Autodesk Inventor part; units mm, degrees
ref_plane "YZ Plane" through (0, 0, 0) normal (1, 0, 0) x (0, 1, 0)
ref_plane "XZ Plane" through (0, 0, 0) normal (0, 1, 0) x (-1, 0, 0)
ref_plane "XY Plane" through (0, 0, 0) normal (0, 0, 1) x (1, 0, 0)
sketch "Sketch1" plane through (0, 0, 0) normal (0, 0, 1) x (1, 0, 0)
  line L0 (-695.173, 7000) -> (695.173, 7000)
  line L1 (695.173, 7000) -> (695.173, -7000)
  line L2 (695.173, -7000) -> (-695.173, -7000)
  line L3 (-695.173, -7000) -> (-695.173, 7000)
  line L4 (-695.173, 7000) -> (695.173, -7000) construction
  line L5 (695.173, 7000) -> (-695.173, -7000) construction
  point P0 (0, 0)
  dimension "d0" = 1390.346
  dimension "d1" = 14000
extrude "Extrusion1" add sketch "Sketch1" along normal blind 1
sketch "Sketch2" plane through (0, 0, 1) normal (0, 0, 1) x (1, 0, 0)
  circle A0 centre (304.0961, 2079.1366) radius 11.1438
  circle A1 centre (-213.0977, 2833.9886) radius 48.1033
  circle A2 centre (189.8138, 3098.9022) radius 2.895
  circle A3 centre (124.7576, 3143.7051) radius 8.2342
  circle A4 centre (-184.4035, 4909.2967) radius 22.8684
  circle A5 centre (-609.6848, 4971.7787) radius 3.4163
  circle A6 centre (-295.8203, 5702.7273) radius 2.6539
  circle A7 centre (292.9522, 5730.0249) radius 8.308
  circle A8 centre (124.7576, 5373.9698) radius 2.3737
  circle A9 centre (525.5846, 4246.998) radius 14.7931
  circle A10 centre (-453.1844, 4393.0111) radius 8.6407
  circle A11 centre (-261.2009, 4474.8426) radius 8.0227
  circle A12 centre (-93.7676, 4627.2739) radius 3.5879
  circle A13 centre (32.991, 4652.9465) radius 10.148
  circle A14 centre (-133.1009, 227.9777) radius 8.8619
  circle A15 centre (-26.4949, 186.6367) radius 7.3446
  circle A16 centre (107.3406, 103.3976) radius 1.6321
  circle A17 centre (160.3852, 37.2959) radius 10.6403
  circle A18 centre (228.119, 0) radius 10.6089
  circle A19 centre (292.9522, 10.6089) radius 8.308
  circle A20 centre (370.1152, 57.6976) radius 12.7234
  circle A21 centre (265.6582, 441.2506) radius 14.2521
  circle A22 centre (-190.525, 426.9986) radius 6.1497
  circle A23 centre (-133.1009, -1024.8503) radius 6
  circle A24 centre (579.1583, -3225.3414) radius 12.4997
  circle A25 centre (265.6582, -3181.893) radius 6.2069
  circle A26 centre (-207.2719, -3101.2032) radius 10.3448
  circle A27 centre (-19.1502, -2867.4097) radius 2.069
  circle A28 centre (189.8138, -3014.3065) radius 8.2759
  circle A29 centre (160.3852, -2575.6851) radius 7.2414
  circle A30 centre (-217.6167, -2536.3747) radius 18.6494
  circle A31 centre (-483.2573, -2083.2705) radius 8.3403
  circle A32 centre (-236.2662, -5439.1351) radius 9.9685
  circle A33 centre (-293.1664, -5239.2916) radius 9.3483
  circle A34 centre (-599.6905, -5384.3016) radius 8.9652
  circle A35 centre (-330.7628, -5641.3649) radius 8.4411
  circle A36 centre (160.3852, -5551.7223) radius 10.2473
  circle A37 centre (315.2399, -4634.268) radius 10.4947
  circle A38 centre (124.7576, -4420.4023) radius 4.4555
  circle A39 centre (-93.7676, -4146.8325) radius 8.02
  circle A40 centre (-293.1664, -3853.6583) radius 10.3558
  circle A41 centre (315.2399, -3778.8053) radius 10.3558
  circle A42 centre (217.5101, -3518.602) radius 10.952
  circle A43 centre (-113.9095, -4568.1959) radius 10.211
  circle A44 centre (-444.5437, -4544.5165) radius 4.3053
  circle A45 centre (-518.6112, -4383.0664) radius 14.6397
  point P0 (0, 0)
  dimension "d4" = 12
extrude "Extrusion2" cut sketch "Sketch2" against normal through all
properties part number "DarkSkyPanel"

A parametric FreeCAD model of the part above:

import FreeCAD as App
import Part
import Sketcher

V = App.Vector

doc = App.newDocument("Part")
body = doc.addObject("PartDesign::Body", "Body")

# Sketch on XY plane
sketch1 = body.newObject("Sketcher::SketchObject", "Sketch")
sketch1.AttachmentSupport = (doc.getObject("XY_Plane"), [""])
sketch1.MapMode = "FlatFace"
sketch1.addGeometry(Part.LineSegment(V(695.173, 7000, 0), V(-695.173, 7000, 0)), False)
sketch1.addGeometry(Part.LineSegment(V(-695.173, 7000, 0), V(-695.173, -7000, 0)), False)
sketch1.addGeometry(Part.LineSegment(V(-695.173, -7000, 0), V(695.173, -7000, 0)), False)
sketch1.addGeometry(Part.LineSegment(V(695.173, -7000, 0), V(695.173, 7000, 0)), False)
sketch1.addConstraint(Sketcher.Constraint("Coincident", 0, 2, 1, 1))
sketch1.addConstraint(Sketcher.Constraint("Coincident", 1, 2, 2, 1))
sketch1.addConstraint(Sketcher.Constraint("Coincident", 2, 2, 3, 1))
sketch1.addConstraint(Sketcher.Constraint("Coincident", 3, 2, 0, 1))
sketch1.addConstraint(Sketcher.Constraint("Horizontal", 0))
sketch1.addConstraint(Sketcher.Constraint("Vertical", 1))
sketch1.addConstraint(Sketcher.Constraint("Horizontal", 2))
sketch1.addConstraint(Sketcher.Constraint("Vertical", 3))
sketch1.addConstraint(Sketcher.Constraint("Symmetric", 0, 2, 2, 2, -1, 1))
sketch1.addConstraint(Sketcher.Constraint("DistanceY", 1, 2, 1, 1, 14000.0))
sketch1.addConstraint(Sketcher.Constraint("DistanceX", 0, 2, 0, 1, 1390.346))
pad1 = body.newObject("PartDesign::Pad", "Pad")
pad1.Profile = sketch1
pad1.Length = 1

# Sketch on XY plane
sketch2 = body.newObject("Sketcher::SketchObject", "Sketch001")
sketch2.AttachmentSupport = (doc.getObject("XY_Plane"), [""])
sketch2.MapMode = "FlatFace"
sketch2.AttachmentOffset = App.Placement(V(0, 0, 1), App.Rotation())
sketch2.addGeometry(Part.Circle(V(304.0961, 2079.1366, 0), V(0, 0, 1), 11.1438), False)
sketch2.addGeometry(Part.Circle(V(-213.0977, 2833.9886, 0), V(0, 0, 1), 48.1033), False)
sketch2.addGeometry(Part.Circle(V(189.8138, 3098.9022, 0), V(0, 0, 1), 2.895), False)
sketch2.addGeometry(Part.Circle(V(124.7576, 3143.7051, 0), V(0, 0, 1), 8.2342), False)
sketch2.addGeometry(Part.Circle(V(-184.4035, 4909.2967, 0), V(0, 0, 1), 22.8684), False)
sketch2.addGeometry(Part.Circle(V(-609.6848, 4971.7787, 0), V(0, 0, 1), 3.4163), False)
sketch2.addGeometry(Part.Circle(V(-295.8203, 5702.7273, 0), V(0, 0, 1), 2.6539), False)
sketch2.addGeometry(Part.Circle(V(292.9522, 5730.0249, 0), V(0, 0, 1), 8.308), False)
sketch2.addGeometry(Part.Circle(V(124.7576, 5373.9698, 0), V(0, 0, 1), 2.3737), False)
sketch2.addGeometry(Part.Circle(V(525.5846, 4246.998, 0), V(0, 0, 1), 14.7931), False)
sketch2.addGeometry(Part.Circle(V(-453.1844, 4393.0111, 0), V(0, 0, 1), 8.6407), False)
sketch2.addGeometry(Part.Circle(V(-261.2009, 4474.8426, 0), V(0, 0, 1), 8.0227), False)
sketch2.addGeometry(Part.Circle(V(-93.7676, 4627.2739, 0), V(0, 0, 1), 3.5879), False)
sketch2.addGeometry(Part.Circle(V(32.991, 4652.9465, 0), V(0, 0, 1), 10.148), False)
sketch2.addGeometry(Part.Circle(V(-133.1009, 227.9777, 0), V(0, 0, 1), 8.8619), False)
sketch2.addGeometry(Part.Circle(V(-26.4949, 186.6367, 0), V(0, 0, 1), 7.3446), False)
sketch2.addGeometry(Part.Circle(V(107.3406, 103.3976, 0), V(0, 0, 1), 1.6321), False)
sketch2.addGeometry(Part.Circle(V(160.3852, 37.2959, 0), V(0, 0, 1), 10.6403), False)
sketch2.addGeometry(Part.Circle(V(228.119, 0, 0), V(0, 0, 1), 10.6089), False)
sketch2.addGeometry(Part.Circle(V(292.9522, 10.6089, 0), V(0, 0, 1), 8.308), False)
sketch2.addGeometry(Part.Circle(V(370.1152, 57.6976, 0), V(0, 0, 1), 12.7234), False)
sketch2.addGeometry(Part.Circle(V(265.6582, 441.2506, 0), V(0, 0, 1), 14.2521), False)
sketch2.addGeometry(Part.Circle(V(-190.525, 426.9986, 0), V(0, 0, 1), 6.1497), False)
sketch2.addGeometry(Part.Circle(V(-133.1009, -1024.8503, 0), V(0, 0, 1), 6), False)
sketch2.addGeometry(Part.Circle(V(579.1583, -3225.3414, 0), V(0, 0, 1), 12.4997), False)
sketch2.addGeometry(Part.Circle(V(265.6582, -3181.893, 0), V(0, 0, 1), 6.2069), False)
sketch2.addGeometry(Part.Circle(V(-207.2719, -3101.2032, 0), V(0, 0, 1), 10.3448), False)
sketch2.addGeometry(Part.Circle(V(-19.1502, -2867.4097, 0), V(0, 0, 1), 2.069), False)
sketch2.addGeometry(Part.Circle(V(189.8138, -3014.3065, 0), V(0, 0, 1), 8.2759), False)
sketch2.addGeometry(Part.Circle(V(160.3852, -2575.6851, 0), V(0, 0, 1), 7.2414), False)
sketch2.addGeometry(Part.Circle(V(-217.6167, -2536.3747, 0), V(0, 0, 1), 18.6494), False)
sketch2.addGeometry(Part.Circle(V(-483.2573, -2083.2705, 0), V(0, 0, 1), 8.3403), False)
sketch2.addGeometry(Part.Circle(V(-236.2662, -5439.1351, 0), V(0, 0, 1), 9.9685), False)
sketch2.addGeometry(Part.Circle(V(-293.1664, -5239.2916, 0), V(0, 0, 1), 9.3483), False)
sketch2.addGeometry(Part.Circle(V(-599.6905, -5384.3016, 0), V(0, 0, 1), 8.9652), False)
sketch2.addGeometry(Part.Circle(V(-330.7628, -5641.3649, 0), V(0, 0, 1), 8.4411), False)
sketch2.addGeometry(Part.Circle(V(160.3852, -5551.7223, 0), V(0, 0, 1), 10.2473), False)
sketch2.addGeometry(Part.Circle(V(315.2399, -4634.268, 0), V(0, 0, 1), 10.4947), False)
sketch2.addGeometry(Part.Circle(V(124.7576, -4420.4023, 0), V(0, 0, 1), 4.4555), False)
sketch2.addGeometry(Part.Circle(V(-93.7676, -4146.8325, 0), V(0, 0, 1), 8.02), False)
sketch2.addGeometry(Part.Circle(V(-293.1664, -3853.6583, 0), V(0, 0, 1), 10.3558), False)
sketch2.addGeometry(Part.Circle(V(315.2399, -3778.8053, 0), V(0, 0, 1), 10.3558), False)
sketch2.addGeometry(Part.Circle(V(217.5101, -3518.602, 0), V(0, 0, 1), 10.952), False)
sketch2.addGeometry(Part.Circle(V(-113.9095, -4568.1959, 0), V(0, 0, 1), 10.211), False)
sketch2.addGeometry(Part.Circle(V(-444.5437, -4544.5165, 0), V(0, 0, 1), 4.3053), False)
sketch2.addGeometry(Part.Circle(V(-518.6112, -4383.0664, 0), V(0, 0, 1), 14.6397), False)
sketch2.addConstraint(Sketcher.Constraint("Equal", 7, 19))
sketch2.addConstraint(Sketcher.Constraint("Equal", 40, 41))
sketch2.addConstraint(Sketcher.Constraint("PointOnObject", 18, 3, -1))
sketch2.addConstraint(Sketcher.Constraint("Vertical", 3, 3, 8, 3))
sketch2.addConstraint(Sketcher.Constraint("Vertical", 7, 3, 19, 3))
sketch2.addConstraint(Sketcher.Constraint("Vertical", 14, 3, 23, 3))
sketch2.addConstraint(Sketcher.Constraint("Vertical", 21, 3, 25, 3))
sketch2.addConstraint(Sketcher.Constraint("Vertical", 2, 3, 28, 3))
sketch2.addConstraint(Sketcher.Constraint("Vertical", 17, 3, 29, 3))
sketch2.addConstraint(Sketcher.Constraint("Vertical", 29, 3, 36, 3))
sketch2.addConstraint(Sketcher.Constraint("Vertical", 8, 3, 38, 3))
sketch2.addConstraint(Sketcher.Constraint("Vertical", 12, 3, 39, 3))
sketch2.addConstraint(Sketcher.Constraint("Vertical", 33, 3, 40, 3))
sketch2.addConstraint(Sketcher.Constraint("Vertical", 37, 3, 41, 3))
sketch2.addConstraint(Sketcher.Constraint("Diameter", 23, 12.0))
sketch2.addConstraint(Sketcher.Constraint("Diameter", 2, 5.79))
sketch2.addConstraint(Sketcher.Constraint("Diameter", 39, 16.04))
sketch2.addConstraint(Sketcher.Constraint("Diameter", 7, 16.616))
sketch2.addConstraint(Sketcher.Constraint("Diameter", 13, 20.296))
sketch2.addConstraint(Sketcher.Constraint("Diameter", 27, 4.138))
sketch2.addConstraint(Sketcher.Constraint("Diameter", 32, 19.937))
sketch2.addConstraint(Sketcher.Constraint("Diameter", 38, 8.911))
sketch2.addConstraint(Sketcher.Constraint("Diameter", 42, 21.904))
sketch2.addConstraint(Sketcher.Constraint("Diameter", 43, 20.422))
sketch2.addConstraint(Sketcher.Constraint("Diameter", 0, 22.2876))
sketch2.addConstraint(Sketcher.Constraint("Diameter", 1, 96.2066))
sketch2.addConstraint(Sketcher.Constraint("Diameter", 3, 16.4684))
sketch2.addConstraint(Sketcher.Constraint("Diameter", 4, 45.7368))
sketch2.addConstraint(Sketcher.Constraint("Diameter", 5, 6.8326))
sketch2.addConstraint(Sketcher.Constraint("Diameter", 6, 5.3078))
sketch2.addConstraint(Sketcher.Constraint("Diameter", 8, 4.7474))
sketch2.addConstraint(Sketcher.Constraint("Diameter", 9, 29.5862))
sketch2.addConstraint(Sketcher.Constraint("Diameter", 10, 17.2814))
sketch2.addConstraint(Sketcher.Constraint("Diameter", 11, 16.0454))
sketch2.addConstraint(Sketcher.Constraint("Diameter", 12, 7.1758))
sketch2.addConstraint(Sketcher.Constraint("Diameter", 14, 17.7238))
sketch2.addConstraint(Sketcher.Constraint("Diameter", 15, 14.6892))
sketch2.addConstraint(Sketcher.Constraint("Diameter", 16, 3.2642))
sketch2.addConstraint(Sketcher.Constraint("Diameter", 17, 21.2806))
sketch2.addConstraint(Sketcher.Constraint("Diameter", 18, 21.2178))
sketch2.addConstraint(Sketcher.Constraint("Diameter", 20, 25.4468))
sketch2.addConstraint(Sketcher.Constraint("Diameter", 21, 28.5042))
sketch2.addConstraint(Sketcher.Constraint("Diameter", 22, 12.2994))
sketch2.addConstraint(Sketcher.Constraint("Diameter", 24, 24.9994))
sketch2.addConstraint(Sketcher.Constraint("Diameter", 25, 12.4138))
sketch2.addConstraint(Sketcher.Constraint("Diameter", 26, 20.6896))
sketch2.addConstraint(Sketcher.Constraint("Diameter", 28, 16.5518))
sketch2.addConstraint(Sketcher.Constraint("Diameter", 29, 14.4828))
sketch2.addConstraint(Sketcher.Constraint("Diameter", 30, 37.2988))
sketch2.addConstraint(Sketcher.Constraint("Diameter", 31, 16.6806))
sketch2.addConstraint(Sketcher.Constraint("Diameter", 33, 18.6966))
sketch2.addConstraint(Sketcher.Constraint("Diameter", 34, 17.9304))
sketch2.addConstraint(Sketcher.Constraint("Diameter", 35, 16.8822))
sketch2.addConstraint(Sketcher.Constraint("Diameter", 36, 20.4946))
sketch2.addConstraint(Sketcher.Constraint("Diameter", 37, 20.9894))
sketch2.addConstraint(Sketcher.Constraint("Diameter", 40, 20.7116))
sketch2.addConstraint(Sketcher.Constraint("Diameter", 44, 8.6106))
sketch2.addConstraint(Sketcher.Constraint("Diameter", 45, 29.2794))
sketch2.addConstraint(Sketcher.Constraint("DistanceY", 15, 3, 0, 3, 1892.5))
sketch2.addConstraint(Sketcher.Constraint("DistanceY", 20, 3, 16, 3, 45.7))
sketch2.addConstraint(Sketcher.Constraint("DistanceX", 25, 3, 24, 3, 313.5))
sketch2.addConstraint(Sketcher.Constraint("DistanceX", -1, 1, 37, 3, 315.24))
sketch2.addConstraint(Sketcher.Constraint("DistanceX", -1, 1, 42, 3, 217.51))
sketch2.addConstraint(Sketcher.Constraint("DistanceY", 0, 3, 4, 3, 2830.16))
sketch2.addConstraint(Sketcher.Constraint("DistanceY", 1, 3, 5, 3, 2137.79))
sketch2.addConstraint(Sketcher.Constraint("DistanceY", 16, 3, 14, 3, 124.58))
sketch2.addConstraint(Sketcher.Constraint("DistanceX", 15, 3, 17, 3, 186.88))
sketch2.addConstraint(Sketcher.Constraint("DistanceX", 14, 3, 18, 3, 361.22))
sketch2.addConstraint(Sketcher.Constraint("DistanceX", 17, 3, 20, 3, 209.73))
sketch2.addConstraint(Sketcher.Constraint("DistanceX", 22, 3, 15, 3, 164.03))
sketch2.addConstraint(Sketcher.Constraint("DistanceX", 26, 3, 25, 3, 472.93))
sketch2.addConstraint(Sketcher.Constraint("DistanceX", 32, 3, 28, 3, 426.08))
sketch2.addConstraint(Sketcher.Constraint("DistanceY", 34, 3, 33, 3, 145.01))
sketch2.addConstraint(Sketcher.Constraint("DistanceY", 36, 3, 38, 3, 1131.32))
sketch2.addConstraint(Sketcher.Constraint("DistanceY", 44, 3, 45, 3, 161.45))
sketch2.addConstraint(Sketcher.Constraint("DistanceX", -1, 1, 0, 3, 304.096))
sketch2.addConstraint(Sketcher.Constraint("DistanceY", -1, 1, 3, 3, 3143.705))
sketch2.addConstraint(Sketcher.Constraint("DistanceY", -1, 1, 7, 3, 5730.025))
sketch2.addConstraint(Sketcher.Constraint("DistanceY", -1, 1, 9, 3, 4246.998))
sketch2.addConstraint(Sketcher.Constraint("DistanceY", -1, 1, 10, 3, 4393.011))
sketch2.addConstraint(Sketcher.Constraint("DistanceX", 11, 3, -1, 1, 261.201))
sketch2.addConstraint(Sketcher.Constraint("DistanceY", -1, 1, 12, 3, 4627.274))
sketch2.addConstraint(Sketcher.Constraint("DistanceX", -1, 1, 13, 3, 32.991))
sketch2.addConstraint(Sketcher.Constraint("DistanceX", 14, 3, -1, 1, 133.101))
sketch2.addConstraint(Sketcher.Constraint("DistanceX", 15, 3, -1, 1, 26.495))
sketch2.addConstraint(Sketcher.Constraint("DistanceY", -1, 1, 17, 3, 37.296))
sketch2.addConstraint(Sketcher.Constraint("DistanceY", -1, 1, 19, 3, 10.609))
sketch2.addConstraint(Sketcher.Constraint("DistanceY", 25, 3, -1, 1, 3181.893))
sketch2.addConstraint(Sketcher.Constraint("DistanceX", 26, 3, -1, 1, 207.272))
sketch2.addConstraint(Sketcher.Constraint("DistanceY", 29, 3, -1, 1, 2575.685))
sketch2.addConstraint(Sketcher.Constraint("DistanceY", 32, 3, -1, 1, 5439.135))
sketch2.addConstraint(Sketcher.Constraint("DistanceY", 35, 3, -1, 1, 5641.365))
sketch2.addConstraint(Sketcher.Constraint("DistanceY", 37, 3, -1, 1, 4634.268))
sketch2.addConstraint(Sketcher.Constraint("DistanceY", 42, 3, -1, 1, 3518.602))
sketch2.addConstraint(Sketcher.Constraint("DistanceY", 43, 3, -1, 1, 4568.196))
sketch2.addConstraint(Sketcher.Constraint("DistanceY", 0, 3, 1, 3, 754.852))
sketch2.addConstraint(Sketcher.Constraint("DistanceY", 2, 3, 3, 3, 44.803))
sketch2.addConstraint(Sketcher.Constraint("DistanceX", 4, 3, 3, 3, 309.161))
sketch2.addConstraint(Sketcher.Constraint("DistanceX", 5, 3, 1, 3, 396.587))
sketch2.addConstraint(Sketcher.Constraint("DistanceX", 5, 3, 0, 3, 913.781))
sketch2.addConstraint(Sketcher.Constraint("DistanceX", 6, 3, 3, 3, 420.578))
sketch2.addConstraint(Sketcher.Constraint("DistanceX", 6, 3, 2, 3, 485.634))
sketch2.addConstraint(Sketcher.Constraint("DistanceY", 2, 3, 6, 3, 2603.825))
sketch2.addConstraint(Sketcher.Constraint("DistanceX", 5, 3, 7, 3, 902.637))
sketch2.addConstraint(Sketcher.Constraint("DistanceY", 8, 3, 7, 3, 356.055))
sketch2.addConstraint(Sketcher.Constraint("DistanceY", 4, 3, 8, 3, 464.673))
sketch2.addConstraint(Sketcher.Constraint("DistanceX", 4, 3, 9, 3, 709.988))
sketch2.addConstraint(Sketcher.Constraint("DistanceX", 10, 3, 4, 3, 268.781))
sketch2.addConstraint(Sketcher.Constraint("DistanceY", 11, 3, 4, 3, 434.454))
sketch2.addConstraint(Sketcher.Constraint("DistanceX", 4, 3, 12, 3, 90.636))
sketch2.addConstraint(Sketcher.Constraint("DistanceY", 11, 3, 13, 3, 178.104))
sketch2.addConstraint(Sketcher.Constraint("DistanceY", 14, 3, 0, 3, 1851.159))
sketch2.addConstraint(Sketcher.Constraint("DistanceY", 16, 3, 21, 3, 337.853))
sketch2.addConstraint(Sketcher.Constraint("DistanceY", 14, 3, 22, 3, 199.021))
sketch2.addConstraint(Sketcher.Constraint("DistanceY", 23, 3, 16, 3, 1128.248))
sketch2.addConstraint(Sketcher.Constraint("DistanceY", 24, 3, 23, 3, 2200.491))
sketch2.addConstraint(Sketcher.Constraint("DistanceY", 26, 3, 23, 3, 2076.353))
sketch2.addConstraint(Sketcher.Constraint("DistanceX", 27, 3, 28, 3, 208.964))
sketch2.addConstraint(Sketcher.Constraint("DistanceY", 24, 3, 28, 3, 211.035))
sketch2.addConstraint(Sketcher.Constraint("DistanceX", 30, 3, 29, 3, 378.002))
sketch2.addConstraint(Sketcher.Constraint("DistanceY", 27, 3, 30, 3, 331.035))
sketch2.addConstraint(Sketcher.Constraint("DistanceX", 31, 3, 27, 3, 464.107))
sketch2.addConstraint(Sketcher.Constraint("DistanceY", 33, 3, 28, 3, 2224.985))
sketch2.addConstraint(Sketcher.Constraint("DistanceX", 34, 3, 33, 3, 306.524))
sketch2.addConstraint(Sketcher.Constraint("DistanceX", 35, 3, 25, 3, 596.421))
sketch2.addConstraint(Sketcher.Constraint("DistanceY", 36, 3, 24, 3, 2326.381))
sketch2.addConstraint(Sketcher.Constraint("DistanceX", 32, 3, 37, 3, 551.506))
sketch2.addConstraint(Sketcher.Constraint("DistanceX", 33, 3, 38, 3, 417.924))
sketch2.addConstraint(Sketcher.Constraint("DistanceY", 33, 3, 39, 3, 1092.459))
sketch2.addConstraint(Sketcher.Constraint("DistanceY", 38, 3, 40, 3, 566.744))
sketch2.addConstraint(Sketcher.Constraint("DistanceY", 40, 3, 41, 3, 74.853))
sketch2.addConstraint(Sketcher.Constraint("DistanceX", 43, 3, 38, 3, 238.667))
sketch2.addConstraint(Sketcher.Constraint("DistanceX", 44, 3, 39, 3, 350.776))
sketch2.addConstraint(Sketcher.Constraint("DistanceY", 44, 3, 39, 3, 397.684))
sketch2.addConstraint(Sketcher.Constraint("DistanceX", -1, 1, 16, 3, 107.3406))
sketch2.addConstraint(Sketcher.Constraint("DistanceY", 27, 3, -1, 1, 2867.4097))
sketch2.addConstraint(Sketcher.Constraint("DistanceY", 31, 3, -1, 1, 2083.2705))
sketch2.addConstraint(Sketcher.Constraint("DistanceX", 45, 3, -1, 1, 518.6112))
pocket1 = body.newObject("PartDesign::Pocket", "Pocket")
pocket1.Profile = sketch2
pocket1.Type = "ThroughAll"

doc.recompute()
